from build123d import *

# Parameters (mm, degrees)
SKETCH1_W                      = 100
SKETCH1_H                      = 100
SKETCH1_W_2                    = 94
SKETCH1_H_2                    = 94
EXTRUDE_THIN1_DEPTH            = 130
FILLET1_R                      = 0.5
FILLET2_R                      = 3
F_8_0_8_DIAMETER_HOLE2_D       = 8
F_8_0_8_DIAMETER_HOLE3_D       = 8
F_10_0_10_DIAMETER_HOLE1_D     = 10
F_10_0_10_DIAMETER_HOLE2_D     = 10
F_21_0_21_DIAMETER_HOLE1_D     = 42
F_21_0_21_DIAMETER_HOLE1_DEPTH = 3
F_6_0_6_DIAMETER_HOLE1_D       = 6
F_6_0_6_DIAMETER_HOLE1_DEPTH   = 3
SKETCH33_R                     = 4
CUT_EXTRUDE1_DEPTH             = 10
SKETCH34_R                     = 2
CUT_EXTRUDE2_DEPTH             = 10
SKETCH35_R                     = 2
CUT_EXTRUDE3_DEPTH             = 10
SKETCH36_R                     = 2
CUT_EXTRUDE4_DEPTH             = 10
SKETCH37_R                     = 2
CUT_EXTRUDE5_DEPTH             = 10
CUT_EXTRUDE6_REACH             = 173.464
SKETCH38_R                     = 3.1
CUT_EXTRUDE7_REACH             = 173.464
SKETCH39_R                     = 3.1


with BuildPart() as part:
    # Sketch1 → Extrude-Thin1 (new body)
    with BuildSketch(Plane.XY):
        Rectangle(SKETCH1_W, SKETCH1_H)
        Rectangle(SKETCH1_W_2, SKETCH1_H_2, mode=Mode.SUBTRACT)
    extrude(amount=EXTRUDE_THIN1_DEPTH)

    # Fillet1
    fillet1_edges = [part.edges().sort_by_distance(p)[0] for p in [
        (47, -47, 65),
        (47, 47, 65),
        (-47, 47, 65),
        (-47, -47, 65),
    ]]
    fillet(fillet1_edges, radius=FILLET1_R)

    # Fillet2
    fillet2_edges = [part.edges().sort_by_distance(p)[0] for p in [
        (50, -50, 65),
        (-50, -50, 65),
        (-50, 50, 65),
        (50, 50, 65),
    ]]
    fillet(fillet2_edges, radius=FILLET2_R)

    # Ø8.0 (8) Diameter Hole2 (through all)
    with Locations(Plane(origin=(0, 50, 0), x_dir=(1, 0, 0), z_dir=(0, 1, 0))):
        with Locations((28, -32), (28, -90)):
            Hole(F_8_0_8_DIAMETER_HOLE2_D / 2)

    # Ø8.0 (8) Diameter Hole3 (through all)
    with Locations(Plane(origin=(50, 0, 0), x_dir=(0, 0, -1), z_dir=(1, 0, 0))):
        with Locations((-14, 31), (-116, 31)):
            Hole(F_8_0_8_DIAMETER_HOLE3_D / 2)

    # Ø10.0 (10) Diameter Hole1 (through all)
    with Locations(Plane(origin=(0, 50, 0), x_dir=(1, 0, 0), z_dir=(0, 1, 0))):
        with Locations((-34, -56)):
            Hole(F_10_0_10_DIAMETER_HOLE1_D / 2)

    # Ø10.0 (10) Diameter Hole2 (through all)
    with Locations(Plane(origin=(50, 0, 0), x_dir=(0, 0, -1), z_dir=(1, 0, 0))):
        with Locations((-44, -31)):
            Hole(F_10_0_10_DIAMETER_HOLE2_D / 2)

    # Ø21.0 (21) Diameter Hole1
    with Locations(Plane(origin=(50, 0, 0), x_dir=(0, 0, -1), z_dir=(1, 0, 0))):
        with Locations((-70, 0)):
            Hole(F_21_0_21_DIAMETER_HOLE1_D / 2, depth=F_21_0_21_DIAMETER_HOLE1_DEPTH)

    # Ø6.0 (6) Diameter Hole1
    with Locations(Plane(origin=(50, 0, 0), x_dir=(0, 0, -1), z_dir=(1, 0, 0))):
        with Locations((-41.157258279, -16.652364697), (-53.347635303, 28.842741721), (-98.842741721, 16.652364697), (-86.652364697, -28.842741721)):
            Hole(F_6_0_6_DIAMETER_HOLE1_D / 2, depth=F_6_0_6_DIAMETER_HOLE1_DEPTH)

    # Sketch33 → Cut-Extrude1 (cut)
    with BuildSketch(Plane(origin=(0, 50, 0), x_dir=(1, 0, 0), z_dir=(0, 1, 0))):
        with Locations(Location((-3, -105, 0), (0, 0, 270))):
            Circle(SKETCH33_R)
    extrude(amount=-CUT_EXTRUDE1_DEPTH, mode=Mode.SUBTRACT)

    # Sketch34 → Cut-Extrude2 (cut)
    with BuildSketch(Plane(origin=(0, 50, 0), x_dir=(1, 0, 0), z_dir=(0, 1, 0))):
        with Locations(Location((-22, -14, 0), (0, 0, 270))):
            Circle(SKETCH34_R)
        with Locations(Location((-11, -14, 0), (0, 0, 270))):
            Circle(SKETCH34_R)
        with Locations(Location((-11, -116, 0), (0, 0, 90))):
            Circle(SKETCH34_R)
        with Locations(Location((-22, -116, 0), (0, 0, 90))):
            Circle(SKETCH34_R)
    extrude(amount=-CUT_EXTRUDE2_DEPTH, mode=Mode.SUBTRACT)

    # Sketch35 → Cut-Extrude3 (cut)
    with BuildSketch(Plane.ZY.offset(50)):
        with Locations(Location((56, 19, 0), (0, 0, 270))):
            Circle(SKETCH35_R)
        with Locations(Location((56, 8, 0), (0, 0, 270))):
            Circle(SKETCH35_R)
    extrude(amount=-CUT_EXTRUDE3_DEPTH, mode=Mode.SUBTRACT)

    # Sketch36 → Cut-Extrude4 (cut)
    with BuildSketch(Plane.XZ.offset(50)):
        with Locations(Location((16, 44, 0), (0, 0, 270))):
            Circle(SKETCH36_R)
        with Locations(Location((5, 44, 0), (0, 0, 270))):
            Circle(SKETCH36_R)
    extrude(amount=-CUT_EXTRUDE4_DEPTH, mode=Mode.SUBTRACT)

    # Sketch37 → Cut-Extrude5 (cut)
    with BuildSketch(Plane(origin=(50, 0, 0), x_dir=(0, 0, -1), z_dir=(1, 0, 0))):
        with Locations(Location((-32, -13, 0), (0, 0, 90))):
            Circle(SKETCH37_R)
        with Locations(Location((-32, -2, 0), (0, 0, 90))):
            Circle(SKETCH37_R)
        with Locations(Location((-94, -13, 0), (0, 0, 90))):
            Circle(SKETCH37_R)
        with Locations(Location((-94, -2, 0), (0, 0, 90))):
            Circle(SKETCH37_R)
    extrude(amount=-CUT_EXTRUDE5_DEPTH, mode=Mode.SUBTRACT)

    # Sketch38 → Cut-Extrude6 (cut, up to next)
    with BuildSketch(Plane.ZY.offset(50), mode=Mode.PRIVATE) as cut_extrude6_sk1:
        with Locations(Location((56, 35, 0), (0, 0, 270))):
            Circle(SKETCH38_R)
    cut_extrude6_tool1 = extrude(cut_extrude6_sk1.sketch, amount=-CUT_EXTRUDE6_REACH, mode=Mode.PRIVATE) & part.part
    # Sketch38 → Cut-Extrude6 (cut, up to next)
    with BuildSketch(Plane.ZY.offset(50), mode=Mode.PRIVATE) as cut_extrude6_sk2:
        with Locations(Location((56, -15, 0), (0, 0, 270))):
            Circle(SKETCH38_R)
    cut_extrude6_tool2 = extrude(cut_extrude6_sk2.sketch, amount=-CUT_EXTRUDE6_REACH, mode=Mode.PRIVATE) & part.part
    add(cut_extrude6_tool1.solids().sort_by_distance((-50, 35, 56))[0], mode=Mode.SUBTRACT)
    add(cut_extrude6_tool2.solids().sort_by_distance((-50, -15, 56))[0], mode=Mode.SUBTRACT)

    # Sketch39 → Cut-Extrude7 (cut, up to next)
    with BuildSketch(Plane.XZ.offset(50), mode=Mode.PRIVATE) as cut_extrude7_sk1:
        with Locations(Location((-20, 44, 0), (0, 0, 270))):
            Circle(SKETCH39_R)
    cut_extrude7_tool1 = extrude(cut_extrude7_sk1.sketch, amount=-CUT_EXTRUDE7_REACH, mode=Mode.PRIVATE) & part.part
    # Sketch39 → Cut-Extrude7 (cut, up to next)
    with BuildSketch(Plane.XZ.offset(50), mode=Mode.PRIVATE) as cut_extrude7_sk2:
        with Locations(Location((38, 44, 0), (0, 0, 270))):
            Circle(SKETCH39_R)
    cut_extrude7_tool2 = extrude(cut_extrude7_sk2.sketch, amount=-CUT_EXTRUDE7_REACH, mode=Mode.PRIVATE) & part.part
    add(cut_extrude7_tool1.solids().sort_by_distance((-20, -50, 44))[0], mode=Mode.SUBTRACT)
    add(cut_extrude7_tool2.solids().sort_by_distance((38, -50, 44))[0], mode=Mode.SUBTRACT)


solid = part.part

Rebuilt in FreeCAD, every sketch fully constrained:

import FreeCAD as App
import Part
import Sketcher

V = App.Vector
Q = App.Units.Quantity


def edges_at(feature, points):
    """Names of the edges that pass closest to the given points."""
    edges = feature.Shape.Edges
    near = lambda p: min(range(len(edges)), key=lambda i: edges[i].distToShape(Part.Vertex(*p))[0])
    return sorted({f"Edge{near(p) + 1}" for p in points})


def add_polygon(sketch, points):
    """Adds a closed chain of lines whose ends are joined by coincident constraints."""
    first, n = sketch.GeometryCount, len(points)
    for a, b in zip(points, points[1:] + points[:1]):
        sketch.addGeometry(Part.LineSegment(App.Vector(*a, 0), App.Vector(*b, 0)), False)
    for i in range(n):
        sketch.addConstraint(Sketcher.Constraint("Coincident", first + i, 2, first + (i + 1) % n, 1))

doc = App.newDocument("Part")
params = doc.addObject("Spreadsheet::Sheet", "Params")
for row, (alias, value) in enumerate([
    ("sketch1_width", "100 mm"),
    ("sketch1_width2", "94 mm"),
    ("pad1_length", "130 mm"),
    ("fillet_radius", "0.5 mm"),
    ("fillet2_radius", "3 mm"),
    ("sketch2_diameter", "8 mm"),
    ("hole_diameter", "8 mm"),
    ("sketch3_diameter", "8 mm"),
    ("hole2_diameter", "8 mm"),
    ("sketch4_diameter", "10 mm"),
    ("hole3_diameter", "10 mm"),
    ("sketch5_diameter", "10 mm"),
    ("hole4_diameter", "10 mm"),
    ("sketch6_diameter", "42 mm"),
    ("hole5_diameter", "42 mm"),
    ("hole5_depth", "3 mm"),
    ("sketch7_diameter", "6 mm"),
    ("hole6_diameter", "6 mm"),
    ("hole6_depth", "3 mm"),
    ("sketch8_diameter", "8 mm"),
    ("pocket1_length", "10 mm"),
    ("sketch9_diameter", "4 mm"),
    ("pocket2_length", "10 mm"),
    ("sketch10_diameter", "4 mm"),
    ("pocket3_length", "10 mm"),
    ("sketch11_diameter", "4 mm"),
    ("pocket4_length", "10 mm"),
    ("sketch12_diameter", "4 mm"),
    ("pocket5_length", "10 mm"),
    ("sketch13_diameter", "6.2 mm"),
    ("sketch14_diameter", "6.2 mm"),
    ("sketch15_diameter", "6.2 mm"),
    ("sketch16_diameter", "6.2 mm"),
], start=1):
    params.set(f"A{row}", alias)
    params.set(f"B{row}", "=" + value)
    params.setAlias(f"B{row}", alias)

body = doc.addObject("PartDesign::Body", "Body")

sketch1 = doc.addObject("Sketcher::SketchObject", "Sketch")
body.addObject(sketch1)
sketch1.AttachmentSupport = (doc.XY_Plane, [""])
sketch1.MapMode = "FlatFace"
add_polygon(sketch1, [(-50, 50), (-50, -50), (50, -50), (50, 50)])
add_polygon(sketch1, [(47, -47), (-47, -47), (-47, 47), (47, 47)])
sketch1.addConstraint([
    Sketcher.Constraint("Vertical", 0),
    Sketcher.Constraint("Horizontal", 1),
    Sketcher.Constraint("Vertical", 2),
    Sketcher.Constraint("Horizontal", 3),
    Sketcher.Constraint("Horizontal", 4),
    Sketcher.Constraint("Vertical", 5),
    Sketcher.Constraint("Horizontal", 6),
    Sketcher.Constraint("Vertical", 7),
    Sketcher.Constraint("Symmetric", 0, 2, 2, 2, -1, 1),
    Sketcher.Constraint("Symmetric", 4, 2, 6, 2, -1, 1),
    Sketcher.Constraint("Equal", 3, 0),
    Sketcher.Constraint("Equal", 6, 5),
    Sketcher.Constraint("DistanceX", 1, 1, 1, 2, Q("100 mm")),
    Sketcher.Constraint("DistanceX", 4, 2, 4, 1, Q("94 mm")),
])
sketch1.setExpression("Constraints[20]", "Params.sketch1_width")
sketch1.setExpression("Constraints[21]", "Params.sketch1_width2")
pad1 = doc.addObject("PartDesign::Pad", "Pad")
body.addObject(pad1)
pad1.Profile = sketch1
pad1.setExpression("Length", "Params.pad1_length")
doc.recompute()

fillet = doc.addObject("PartDesign::Fillet", "Fillet")
body.addObject(fillet)
fillet.Base = (pad1, edges_at(pad1, [
    (47, -47, 65),
    (47, 47, 65),
    (-47, 47, 65),
    (-47, -47, 65),
]))
fillet.setExpression("Radius", "Params.fillet_radius")
doc.recompute()

fillet2 = doc.addObject("PartDesign::Fillet", "Fillet001")
body.addObject(fillet2)
fillet2.Base = (fillet, edges_at(fillet, [
    (50, -50, 65),
    (-50, -50, 65),
    (-50, 50, 65),
    (50, 50, 65),
]))
fillet2.setExpression("Radius", "Params.fillet2_radius")

sketch2 = doc.addObject("Sketcher::SketchObject", "Sketch001")
body.addObject(sketch2)
sketch2.AttachmentSupport = (doc.XZ_Plane, [""])
sketch2.MapMode = "FlatFace"
sketch2.AttachmentOffset = App.Placement(V(0, 0, -50), App.Rotation())
sketch2.addGeometry([
    Part.Circle(V(28, 32, 0), V(0, 0, 1), 4),
    Part.Circle(V(28, 90, 0), V(0, 0, 1), 4),
], False)
sketch2.addConstraint([
    Sketcher.Constraint("Equal", 0, 1),
    Sketcher.Constraint("Vertical", 0, 3, 1, 3),
    Sketcher.Constraint("Diameter", 0, Q("8 mm")),
    Sketcher.Constraint("DistanceX", -1, 1, 0, 3, Q("28 mm")),
    Sketcher.Constraint("DistanceY", -1, 1, 0, 3, Q("32 mm")),
    Sketcher.Constraint("DistanceY", -1, 1, 1, 3, Q("90 mm")),
])
sketch2.setExpression("Constraints[2]", "Params.sketch2_diameter")
doc.recompute()
hole = doc.addObject("PartDesign::Hole", "Hole")
body.addObject(hole)
hole.Profile = sketch2
hole.ThreadType = "None"
hole.setExpression("Diameter", "Params.hole_diameter")
hole.DepthType = "ThroughAll"
hole.Reversed = True

sketch3 = doc.addObject("Sketcher::SketchObject", "Sketch002")
body.addObject(sketch3)
sketch3.AttachmentSupport = (doc.YZ_Plane, [""])
sketch3.MapMode = "FlatFace"
sketch3.AttachmentOffset = App.Placement(V(0, 0, 50), App.Rotation())
sketch3.addGeometry([
    Part.Circle(V(31, 14, 0), V(0, 0, 1), 4),
    Part.Circle(V(31, 116, 0), V(0, 0, 1), 4),
], False)
sketch3.addConstraint([
    Sketcher.Constraint("Equal", 0, 1),
    Sketcher.Constraint("Vertical", 0, 3, 1, 3),
    Sketcher.Constraint("Diameter", 0, Q("8 mm")),
    Sketcher.Constraint("DistanceX", -1, 1, 0, 3, Q("31 mm")),
    Sketcher.Constraint("DistanceY", -1, 1, 0, 3, Q("14 mm")),
    Sketcher.Constraint("DistanceY", -1, 1, 1, 3, Q("116 mm")),
])
sketch3.setExpression("Constraints[2]", "Params.sketch3_diameter")
doc.recompute()
hole2 = doc.addObject("PartDesign::Hole", "Hole001")
body.addObject(hole2)
hole2.Profile = sketch3
hole2.ThreadType = "None"
hole2.setExpression("Diameter", "Params.hole2_diameter")
hole2.DepthType = "ThroughAll"

sketch4 = doc.addObject("Sketcher::SketchObject", "Sketch003")
body.addObject(sketch4)
sketch4.AttachmentSupport = (doc.XZ_Plane, [""])
sketch4.MapMode = "FlatFace"
sketch4.AttachmentOffset = App.Placement(V(0, 0, -50), App.Rotation())
sketch4.addGeometry(Part.Circle(V(-34, 56, 0), V(0, 0, 1), 5), False)
sketch4.addConstraint([
    Sketcher.Constraint("Diameter", 0, Q("10 mm")),
    Sketcher.Constraint("DistanceX", 0, 3, -1, 1, Q("34 mm")),
    Sketcher.Constraint("DistanceY", -1, 1, 0, 3, Q("56 mm")),
])
sketch4.setExpression("Constraints[0]", "Params.sketch4_diameter")
doc.recompute()
hole3 = doc.addObject("PartDesign::Hole", "Hole002")
body.addObject(hole3)
hole3.Profile = sketch4
hole3.ThreadType = "None"
hole3.setExpression("Diameter", "Params.hole3_diameter")
hole3.DepthType = "ThroughAll"
hole3.Reversed = True

sketch5 = doc.addObject("Sketcher::SketchObject", "Sketch004")
body.addObject(sketch5)
sketch5.AttachmentSupport = (doc.YZ_Plane, [""])
sketch5.MapMode = "FlatFace"
sketch5.AttachmentOffset = App.Placement(V(0, 0, 50), App.Rotation())
sketch5.addGeometry(Part.Circle(V(-31, 44, 0), V(0, 0, 1), 5), False)
sketch5.addConstraint([
    Sketcher.Constraint("Diameter", 0, Q("10 mm")),
    Sketcher.Constraint("DistanceX", 0, 3, -1, 1, Q("31 mm")),
    Sketcher.Constraint("DistanceY", -1, 1, 0, 3, Q("44 mm")),
])
sketch5.setExpression("Constraints[0]", "Params.sketch5_diameter")
doc.recompute()
hole4 = doc.addObject("PartDesign::Hole", "Hole003")
body.addObject(hole4)
hole4.Profile = sketch5
hole4.ThreadType = "None"
hole4.setExpression("Diameter", "Params.hole4_diameter")
hole4.DepthType = "ThroughAll"

sketch6 = doc.addObject("Sketcher::SketchObject", "Sketch005")
body.addObject(sketch6)
sketch6.AttachmentSupport = (doc.YZ_Plane, [""])
sketch6.MapMode = "FlatFace"
sketch6.AttachmentOffset = App.Placement(V(0, 0, 50), App.Rotation())
sketch6.addGeometry(Part.Circle(V(0, 70, 0), V(0, 0, 1), 21), False)
sketch6.addConstraint([
    Sketcher.Constraint("PointOnObject", 0, 3, -2),
    Sketcher.Constraint("Diameter", 0, Q("42 mm")),
    Sketcher.Constraint("DistanceY", -1, 1, 0, 3, Q("70 mm")),
])
sketch6.setExpression("Constraints[1]", "Params.sketch6_diameter")
doc.recompute()
hole5 = doc.addObject("PartDesign::Hole", "Hole004")
body.addObject(hole5)
hole5.Profile = sketch6
hole5.ThreadType = "None"
hole5.setExpression("Diameter", "Params.hole5_diameter")
hole5.DepthType = "Dimension"
hole5.setExpression("Depth", "Params.hole5_depth")
hole5.DrillPoint = "Flat"

sketch7 = doc.addObject("Sketcher::SketchObject", "Sketch006")
body.addObject(sketch7)
sketch7.AttachmentSupport = (doc.YZ_Plane, [""])
sketch7.MapMode = "FlatFace"
sketch7.AttachmentOffset = App.Placement(V(0, 0, 50), App.Rotation())
sketch7.addGeometry([
    Part.Circle(V(-16.7, 41.2, 0), V(0, 0, 1), 3),
    Part.Circle(V(28.8, 53.3, 0), V(0, 0, 1), 3),
    Part.Circle(V(16.7, 98.8, 0), V(0, 0, 1), 3),
    Part.Circle(V(-28.8, 86.7, 0), V(0, 0, 1), 3),
], False)
sketch7.addConstraint([
    Sketcher.Constraint("Equal", 0, 1),
    Sketcher.Constraint("Equal", 1, 2),
    Sketcher.Constraint("Equal", 2, 3),
    Sketcher.Constraint("Diameter", 0, Q("6 mm")),
    Sketcher.Constraint("DistanceY", -1, 1, 0, 3, Q("41.157258 mm")),
    Sketcher.Constraint("DistanceX", -1, 1, 1, 3, Q("28.842742 mm")),
    Sketcher.Constraint("DistanceY", -1, 1, 2, 3, Q("98.842742 mm")),
    Sketcher.Constraint("DistanceX", 3, 3, -1, 1, Q("28.842742 mm")),
    Sketcher.Constraint("DistanceX", 0, 3, 2, 3, Q("33.304729 mm")),
    Sketcher.Constraint("DistanceY", 1, 3, 3, 3, Q("33.304729 mm")),
    Sketcher.Constraint("DistanceX", 0, 3, -1, 1, Q("16.652365 mm")),
    Sketcher.Constraint("DistanceY", -1, 1, 1, 3, Q("53.347635 mm")),
])
sketch7.setExpression("Constraints[3]", "Params.sketch7_diameter")
doc.recompute()
hole6 = doc.addObject("PartDesign::Hole", "Hole005")
body.addObject(hole6)
hole6.Profile = sketch7
hole6.ThreadType = "None"
hole6.setExpression("Diameter", "Params.hole6_diameter")
hole6.DepthType = "Dimension"
hole6.setExpression("Depth", "Params.hole6_depth")
hole6.DrillPoint = "Flat"

sketch8 = doc.addObject("Sketcher::SketchObject", "Sketch007")
body.addObject(sketch8)
sketch8.AttachmentSupport = (doc.XZ_Plane, [""])
sketch8.MapMode = "FlatFace"
sketch8.AttachmentOffset = App.Placement(V(0, 0, -50), App.Rotation())
sketch8.addGeometry(Part.Circle(V(-3, 105, 0), V(0, 0, 1), 4), False)
sketch8.addConstraint([
    Sketcher.Constraint("Diameter", 0, Q("8 mm")),
    Sketcher.Constraint("DistanceX", 0, 3, -1, 1, Q("3 mm")),
    Sketcher.Constraint("DistanceY", -1, 1, 0, 3, Q("105 mm")),
])
sketch8.setExpression("Constraints[0]", "Params.sketch8_diameter")
pocket1 = doc.addObject("PartDesign::Pocket", "Pocket")
body.addObject(pocket1)
pocket1.Profile = sketch8
pocket1.setExpression("Length", "Params.pocket1_length")
pocket1.Reversed = True

sketch9 = doc.addObject("Sketcher::SketchObject", "Sketch008")
body.addObject(sketch9)
sketch9.AttachmentSupport = (doc.XZ_Plane, [""])
sketch9.MapMode = "FlatFace"
sketch9.AttachmentOffset = App.Placement(V(0, 0, -50), App.Rotation())
sketch9.addGeometry([
    Part.Circle(V(-22, 14, 0), V(0, 0, 1), 2),
    Part.Circle(V(-11, 14, 0), V(0, 0, 1), 2),
    Part.Circle(V(-11, 116, 0), V(0, 0, 1), 2),
    Part.Circle(V(-22, 116, 0), V(0, 0, 1), 2),
], False)
sketch9.addConstraint([
    Sketcher.Constraint("Equal", 0, 1),
    Sketcher.Constraint("Equal", 1, 2),
    Sketcher.Constraint("Equal", 2, 3),
    Sketcher.Constraint("Horizontal", 0, 3, 1, 3),
    Sketcher.Constraint("Horizontal", 2, 3, 3, 3),
    Sketcher.Constraint("Vertical", 1, 3, 2, 3),
    Sketcher.Constraint("Vertical", 0, 3, 3, 3),
    Sketcher.Constraint("Diameter", 0, Q("4 mm")),
    Sketcher.Constraint("DistanceX", 0, 3, -1, 1, Q("22 mm")),
    Sketcher.Constraint("DistanceY", -1, 1, 0, 3, Q("14 mm")),
    Sketcher.Constraint("DistanceX", 1, 3, -1, 1, Q("11 mm")),
    Sketcher.Constraint("DistanceY", -1, 1, 2, 3, Q("116 mm")),
])
sketch9.setExpression("Constraints[7]", "Params.sketch9_diameter")
pocket2 = doc.addObject("PartDesign::Pocket", "Pocket001")
body.addObject(pocket2)
pocket2.Profile = sketch9
pocket2.setExpression("Length", "Params.pocket2_length")
pocket2.Reversed = True

sketch10 = doc.addObject("Sketcher::SketchObject", "Sketch009")
body.addObject(sketch10)
sketch10.AttachmentSupport = (doc.YZ_Plane, [""])
sketch10.MapMode = "FlatFace"
sketch10.AttachmentOffset = App.Placement(V(0, 0, -50), App.Rotation())
sketch10.addGeometry([
    Part.Circle(V(19, 56, 0), V(0, 0, 1), 2),
    Part.Circle(V(8, 56, 0), V(0, 0, 1), 2),
], False)
sketch10.addConstraint([
    Sketcher.Constraint("Equal", 0, 1),
    Sketcher.Constraint("Horizontal", 0, 3, 1, 3),
    Sketcher.Constraint("Diameter", 0, Q("4 mm")),
    Sketcher.Constraint("DistanceX", -1, 1, 0, 3, Q("19 mm")),
    Sketcher.Constraint("DistanceY", -1, 1, 0, 3, Q("56 mm")),
    Sketcher.Constraint("DistanceX", -1, 1, 1, 3, Q("8 mm")),
])
sketch10.setExpression("Constraints[2]", "Params.sketch10_diameter")
pocket3 = doc.addObject("PartDesign::Pocket", "Pocket002")
body.addObject(pocket3)
pocket3.Profile = sketch10
pocket3.setExpression("Length", "Params.pocket3_length")
pocket3.Reversed = True

sketch11 = doc.addObject("Sketcher::SketchObject", "Sketch010")
body.addObject(sketch11)
sketch11.AttachmentSupport = (doc.XZ_Plane, [""])
sketch11.MapMode = "FlatFace"
sketch11.AttachmentOffset = App.Placement(V(0, 0, 50), App.Rotation())
sketch11.addGeometry([
    Part.Circle(V(16, 44, 0), V(0, 0, 1), 2),
    Part.Circle(V(5, 44, 0), V(0, 0, 1), 2),
], False)
sketch11.addConstraint([
    Sketcher.Constraint("Equal", 0, 1),
    Sketcher.Constraint("Horizontal", 0, 3, 1, 3),
    Sketcher.Constraint("Diameter", 0, Q("4 mm")),
    Sketcher.Constraint("DistanceX", -1, 1, 0, 3, Q("16 mm")),
    Sketcher.Constraint("DistanceY", -1, 1, 0, 3, Q("44 mm")),
    Sketcher.Constraint("DistanceX", -1, 1, 1, 3, Q("5 mm")),
])
sketch11.setExpression("Constraints[2]", "Params.sketch11_diameter")
pocket4 = doc.addObject("PartDesign::Pocket", "Pocket003")
body.addObject(pocket4)
pocket4.Profile = sketch11
pocket4.setExpression("Length", "Params.pocket4_length")

sketch12 = doc.addObject("Sketcher::SketchObject", "Sketch011")
body.addObject(sketch12)
sketch12.AttachmentSupport = (doc.YZ_Plane, [""])
sketch12.MapMode = "FlatFace"
sketch12.AttachmentOffset = App.Placement(V(0, 0, 50), App.Rotation())
sketch12.addGeometry([
    Part.Circle(V(-13, 32, 0), V(0, 0, 1), 2),
    Part.Circle(V(-2, 32, 0), V(0, 0, 1), 2),
    Part.Circle(V(-13, 94, 0), V(0, 0, 1), 2),
    Part.Circle(V(-2, 94, 0), V(0, 0, 1), 2),
], False)
sketch12.addConstraint([
    Sketcher.Constraint("Equal", 0, 1),
    Sketcher.Constraint("Equal", 1, 2),
    Sketcher.Constraint("Equal", 2, 3),
    Sketcher.Constraint("Horizontal", 0, 3, 1, 3),
    Sketcher.Constraint("Horizontal", 2, 3, 3, 3),
    Sketcher.Constraint("Vertical", 0, 3, 2, 3),
    Sketcher.Constraint("Vertical", 1, 3, 3, 3),
    Sketcher.Constraint("Diameter", 0, Q("4 mm")),
    Sketcher.Constraint("DistanceX", 0, 3, -1, 1, Q("13 mm")),
    Sketcher.Constraint("DistanceY", -1, 1, 0, 3, Q("32 mm")),
    Sketcher.Constraint("DistanceX", 1, 3, -1, 1, Q("2 mm")),
    Sketcher.Constraint("DistanceY", -1, 1, 2, 3, Q("94 mm")),
])
sketch12.setExpression("Constraints[7]", "Params.sketch12_diameter")
pocket5 = doc.addObject("PartDesign::Pocket", "Pocket004")
body.addObject(pocket5)
pocket5.Profile = sketch12
pocket5.setExpression("Length", "Params.pocket5_length")

sketch13 = doc.addObject("Sketcher::SketchObject", "Sketch012")
body.addObject(sketch13)
sketch13.AttachmentSupport = (doc.YZ_Plane, [""])
sketch13.MapMode = "FlatFace"
sketch13.AttachmentOffset = App.Placement(V(0, 0, -50), App.Rotation())
sketch13.addGeometry(Part.Circle(V(35, 56, 0), V(0, 0, 1), 3.1), False)
sketch13.addConstraint([
    Sketcher.Constraint("Diameter", 0, Q("6.2 mm")),
    Sketcher.Constraint("DistanceX", -1, 1, 0, 3, Q("35 mm")),
    Sketcher.Constraint("DistanceY", -1, 1, 0, 3, Q("56 mm")),
])
sketch13.setExpression("Constraints[0]", "Params.sketch13_diameter")
pocket6 = doc.addObject("PartDesign::Pocket", "Pocket005")
body.addObject(pocket6)
pocket6.Profile = sketch13
pocket6.Type = "UpToFirst"
pocket6.Reversed = True

sketch14 = doc.addObject("Sketcher::SketchObject", "Sketch013")
body.addObject(sketch14)
sketch14.AttachmentSupport = (doc.YZ_Plane, [""])
sketch14.MapMode = "FlatFace"
sketch14.AttachmentOffset = App.Placement(V(0, 0, -50), App.Rotation())
sketch14.addGeometry(Part.Circle(V(-15, 56, 0), V(0, 0, 1), 3.1), False)
sketch14.addConstraint([
    Sketcher.Constraint("Diameter", 0, Q("6.2 mm")),
    Sketcher.Constraint("DistanceX", 0, 3, -1, 1, Q("15 mm")),
    Sketcher.Constraint("DistanceY", -1, 1, 0, 3, Q("56 mm")),
])
sketch14.setExpression("Constraints[0]", "Params.sketch14_diameter")
pocket7 = doc.addObject("PartDesign::Pocket", "Pocket006")
body.addObject(pocket7)
pocket7.Profile = sketch14
pocket7.Type = "UpToFirst"
pocket7.Reversed = True

sketch15 = doc.addObject("Sketcher::SketchObject", "Sketch014")
body.addObject(sketch15)
sketch15.AttachmentSupport = (doc.XZ_Plane, [""])
sketch15.MapMode = "FlatFace"
sketch15.AttachmentOffset = App.Placement(V(0, 0, 50), App.Rotation())
sketch15.addGeometry(Part.Circle(V(-20, 44, 0), V(0, 0, 1), 3.1), False)
sketch15.addConstraint([
    Sketcher.Constraint("Diameter", 0, Q("6.2 mm")),
    Sketcher.Constraint("DistanceX", 0, 3, -1, 1, Q("20 mm")),
    Sketcher.Constraint("DistanceY", -1, 1, 0, 3, Q("44 mm")),
])
sketch15.setExpression("Constraints[0]", "Params.sketch15_diameter")
pocket8 = doc.addObject("PartDesign::Pocket", "Pocket007")
body.addObject(pocket8)
pocket8.Profile = sketch15
pocket8.Type = "UpToFirst"

sketch16 = doc.addObject("Sketcher::SketchObject", "Sketch015")
body.addObject(sketch16)
sketch16.AttachmentSupport = (doc.XZ_Plane, [""])
sketch16.MapMode = "FlatFace"
sketch16.AttachmentOffset = App.Placement(V(0, 0, 50), App.Rotation())
sketch16.addGeometry(Part.Circle(V(38, 44, 0), V(0, 0, 1), 3.1), False)
sketch16.addConstraint([
    Sketcher.Constraint("Diameter", 0, Q("6.2 mm")),
    Sketcher.Constraint("DistanceX", -1, 1, 0, 3, Q("38 mm")),
    Sketcher.Constraint("DistanceY", -1, 1, 0, 3, Q("44 mm")),
])
sketch16.setExpression("Constraints[0]", "Params.sketch16_diameter")
pocket9 = doc.addObject("PartDesign::Pocket", "Pocket008")
body.addObject(pocket9)
pocket9.Profile = sketch16
pocket9.Type = "UpToFirst"

doc.recompute()
